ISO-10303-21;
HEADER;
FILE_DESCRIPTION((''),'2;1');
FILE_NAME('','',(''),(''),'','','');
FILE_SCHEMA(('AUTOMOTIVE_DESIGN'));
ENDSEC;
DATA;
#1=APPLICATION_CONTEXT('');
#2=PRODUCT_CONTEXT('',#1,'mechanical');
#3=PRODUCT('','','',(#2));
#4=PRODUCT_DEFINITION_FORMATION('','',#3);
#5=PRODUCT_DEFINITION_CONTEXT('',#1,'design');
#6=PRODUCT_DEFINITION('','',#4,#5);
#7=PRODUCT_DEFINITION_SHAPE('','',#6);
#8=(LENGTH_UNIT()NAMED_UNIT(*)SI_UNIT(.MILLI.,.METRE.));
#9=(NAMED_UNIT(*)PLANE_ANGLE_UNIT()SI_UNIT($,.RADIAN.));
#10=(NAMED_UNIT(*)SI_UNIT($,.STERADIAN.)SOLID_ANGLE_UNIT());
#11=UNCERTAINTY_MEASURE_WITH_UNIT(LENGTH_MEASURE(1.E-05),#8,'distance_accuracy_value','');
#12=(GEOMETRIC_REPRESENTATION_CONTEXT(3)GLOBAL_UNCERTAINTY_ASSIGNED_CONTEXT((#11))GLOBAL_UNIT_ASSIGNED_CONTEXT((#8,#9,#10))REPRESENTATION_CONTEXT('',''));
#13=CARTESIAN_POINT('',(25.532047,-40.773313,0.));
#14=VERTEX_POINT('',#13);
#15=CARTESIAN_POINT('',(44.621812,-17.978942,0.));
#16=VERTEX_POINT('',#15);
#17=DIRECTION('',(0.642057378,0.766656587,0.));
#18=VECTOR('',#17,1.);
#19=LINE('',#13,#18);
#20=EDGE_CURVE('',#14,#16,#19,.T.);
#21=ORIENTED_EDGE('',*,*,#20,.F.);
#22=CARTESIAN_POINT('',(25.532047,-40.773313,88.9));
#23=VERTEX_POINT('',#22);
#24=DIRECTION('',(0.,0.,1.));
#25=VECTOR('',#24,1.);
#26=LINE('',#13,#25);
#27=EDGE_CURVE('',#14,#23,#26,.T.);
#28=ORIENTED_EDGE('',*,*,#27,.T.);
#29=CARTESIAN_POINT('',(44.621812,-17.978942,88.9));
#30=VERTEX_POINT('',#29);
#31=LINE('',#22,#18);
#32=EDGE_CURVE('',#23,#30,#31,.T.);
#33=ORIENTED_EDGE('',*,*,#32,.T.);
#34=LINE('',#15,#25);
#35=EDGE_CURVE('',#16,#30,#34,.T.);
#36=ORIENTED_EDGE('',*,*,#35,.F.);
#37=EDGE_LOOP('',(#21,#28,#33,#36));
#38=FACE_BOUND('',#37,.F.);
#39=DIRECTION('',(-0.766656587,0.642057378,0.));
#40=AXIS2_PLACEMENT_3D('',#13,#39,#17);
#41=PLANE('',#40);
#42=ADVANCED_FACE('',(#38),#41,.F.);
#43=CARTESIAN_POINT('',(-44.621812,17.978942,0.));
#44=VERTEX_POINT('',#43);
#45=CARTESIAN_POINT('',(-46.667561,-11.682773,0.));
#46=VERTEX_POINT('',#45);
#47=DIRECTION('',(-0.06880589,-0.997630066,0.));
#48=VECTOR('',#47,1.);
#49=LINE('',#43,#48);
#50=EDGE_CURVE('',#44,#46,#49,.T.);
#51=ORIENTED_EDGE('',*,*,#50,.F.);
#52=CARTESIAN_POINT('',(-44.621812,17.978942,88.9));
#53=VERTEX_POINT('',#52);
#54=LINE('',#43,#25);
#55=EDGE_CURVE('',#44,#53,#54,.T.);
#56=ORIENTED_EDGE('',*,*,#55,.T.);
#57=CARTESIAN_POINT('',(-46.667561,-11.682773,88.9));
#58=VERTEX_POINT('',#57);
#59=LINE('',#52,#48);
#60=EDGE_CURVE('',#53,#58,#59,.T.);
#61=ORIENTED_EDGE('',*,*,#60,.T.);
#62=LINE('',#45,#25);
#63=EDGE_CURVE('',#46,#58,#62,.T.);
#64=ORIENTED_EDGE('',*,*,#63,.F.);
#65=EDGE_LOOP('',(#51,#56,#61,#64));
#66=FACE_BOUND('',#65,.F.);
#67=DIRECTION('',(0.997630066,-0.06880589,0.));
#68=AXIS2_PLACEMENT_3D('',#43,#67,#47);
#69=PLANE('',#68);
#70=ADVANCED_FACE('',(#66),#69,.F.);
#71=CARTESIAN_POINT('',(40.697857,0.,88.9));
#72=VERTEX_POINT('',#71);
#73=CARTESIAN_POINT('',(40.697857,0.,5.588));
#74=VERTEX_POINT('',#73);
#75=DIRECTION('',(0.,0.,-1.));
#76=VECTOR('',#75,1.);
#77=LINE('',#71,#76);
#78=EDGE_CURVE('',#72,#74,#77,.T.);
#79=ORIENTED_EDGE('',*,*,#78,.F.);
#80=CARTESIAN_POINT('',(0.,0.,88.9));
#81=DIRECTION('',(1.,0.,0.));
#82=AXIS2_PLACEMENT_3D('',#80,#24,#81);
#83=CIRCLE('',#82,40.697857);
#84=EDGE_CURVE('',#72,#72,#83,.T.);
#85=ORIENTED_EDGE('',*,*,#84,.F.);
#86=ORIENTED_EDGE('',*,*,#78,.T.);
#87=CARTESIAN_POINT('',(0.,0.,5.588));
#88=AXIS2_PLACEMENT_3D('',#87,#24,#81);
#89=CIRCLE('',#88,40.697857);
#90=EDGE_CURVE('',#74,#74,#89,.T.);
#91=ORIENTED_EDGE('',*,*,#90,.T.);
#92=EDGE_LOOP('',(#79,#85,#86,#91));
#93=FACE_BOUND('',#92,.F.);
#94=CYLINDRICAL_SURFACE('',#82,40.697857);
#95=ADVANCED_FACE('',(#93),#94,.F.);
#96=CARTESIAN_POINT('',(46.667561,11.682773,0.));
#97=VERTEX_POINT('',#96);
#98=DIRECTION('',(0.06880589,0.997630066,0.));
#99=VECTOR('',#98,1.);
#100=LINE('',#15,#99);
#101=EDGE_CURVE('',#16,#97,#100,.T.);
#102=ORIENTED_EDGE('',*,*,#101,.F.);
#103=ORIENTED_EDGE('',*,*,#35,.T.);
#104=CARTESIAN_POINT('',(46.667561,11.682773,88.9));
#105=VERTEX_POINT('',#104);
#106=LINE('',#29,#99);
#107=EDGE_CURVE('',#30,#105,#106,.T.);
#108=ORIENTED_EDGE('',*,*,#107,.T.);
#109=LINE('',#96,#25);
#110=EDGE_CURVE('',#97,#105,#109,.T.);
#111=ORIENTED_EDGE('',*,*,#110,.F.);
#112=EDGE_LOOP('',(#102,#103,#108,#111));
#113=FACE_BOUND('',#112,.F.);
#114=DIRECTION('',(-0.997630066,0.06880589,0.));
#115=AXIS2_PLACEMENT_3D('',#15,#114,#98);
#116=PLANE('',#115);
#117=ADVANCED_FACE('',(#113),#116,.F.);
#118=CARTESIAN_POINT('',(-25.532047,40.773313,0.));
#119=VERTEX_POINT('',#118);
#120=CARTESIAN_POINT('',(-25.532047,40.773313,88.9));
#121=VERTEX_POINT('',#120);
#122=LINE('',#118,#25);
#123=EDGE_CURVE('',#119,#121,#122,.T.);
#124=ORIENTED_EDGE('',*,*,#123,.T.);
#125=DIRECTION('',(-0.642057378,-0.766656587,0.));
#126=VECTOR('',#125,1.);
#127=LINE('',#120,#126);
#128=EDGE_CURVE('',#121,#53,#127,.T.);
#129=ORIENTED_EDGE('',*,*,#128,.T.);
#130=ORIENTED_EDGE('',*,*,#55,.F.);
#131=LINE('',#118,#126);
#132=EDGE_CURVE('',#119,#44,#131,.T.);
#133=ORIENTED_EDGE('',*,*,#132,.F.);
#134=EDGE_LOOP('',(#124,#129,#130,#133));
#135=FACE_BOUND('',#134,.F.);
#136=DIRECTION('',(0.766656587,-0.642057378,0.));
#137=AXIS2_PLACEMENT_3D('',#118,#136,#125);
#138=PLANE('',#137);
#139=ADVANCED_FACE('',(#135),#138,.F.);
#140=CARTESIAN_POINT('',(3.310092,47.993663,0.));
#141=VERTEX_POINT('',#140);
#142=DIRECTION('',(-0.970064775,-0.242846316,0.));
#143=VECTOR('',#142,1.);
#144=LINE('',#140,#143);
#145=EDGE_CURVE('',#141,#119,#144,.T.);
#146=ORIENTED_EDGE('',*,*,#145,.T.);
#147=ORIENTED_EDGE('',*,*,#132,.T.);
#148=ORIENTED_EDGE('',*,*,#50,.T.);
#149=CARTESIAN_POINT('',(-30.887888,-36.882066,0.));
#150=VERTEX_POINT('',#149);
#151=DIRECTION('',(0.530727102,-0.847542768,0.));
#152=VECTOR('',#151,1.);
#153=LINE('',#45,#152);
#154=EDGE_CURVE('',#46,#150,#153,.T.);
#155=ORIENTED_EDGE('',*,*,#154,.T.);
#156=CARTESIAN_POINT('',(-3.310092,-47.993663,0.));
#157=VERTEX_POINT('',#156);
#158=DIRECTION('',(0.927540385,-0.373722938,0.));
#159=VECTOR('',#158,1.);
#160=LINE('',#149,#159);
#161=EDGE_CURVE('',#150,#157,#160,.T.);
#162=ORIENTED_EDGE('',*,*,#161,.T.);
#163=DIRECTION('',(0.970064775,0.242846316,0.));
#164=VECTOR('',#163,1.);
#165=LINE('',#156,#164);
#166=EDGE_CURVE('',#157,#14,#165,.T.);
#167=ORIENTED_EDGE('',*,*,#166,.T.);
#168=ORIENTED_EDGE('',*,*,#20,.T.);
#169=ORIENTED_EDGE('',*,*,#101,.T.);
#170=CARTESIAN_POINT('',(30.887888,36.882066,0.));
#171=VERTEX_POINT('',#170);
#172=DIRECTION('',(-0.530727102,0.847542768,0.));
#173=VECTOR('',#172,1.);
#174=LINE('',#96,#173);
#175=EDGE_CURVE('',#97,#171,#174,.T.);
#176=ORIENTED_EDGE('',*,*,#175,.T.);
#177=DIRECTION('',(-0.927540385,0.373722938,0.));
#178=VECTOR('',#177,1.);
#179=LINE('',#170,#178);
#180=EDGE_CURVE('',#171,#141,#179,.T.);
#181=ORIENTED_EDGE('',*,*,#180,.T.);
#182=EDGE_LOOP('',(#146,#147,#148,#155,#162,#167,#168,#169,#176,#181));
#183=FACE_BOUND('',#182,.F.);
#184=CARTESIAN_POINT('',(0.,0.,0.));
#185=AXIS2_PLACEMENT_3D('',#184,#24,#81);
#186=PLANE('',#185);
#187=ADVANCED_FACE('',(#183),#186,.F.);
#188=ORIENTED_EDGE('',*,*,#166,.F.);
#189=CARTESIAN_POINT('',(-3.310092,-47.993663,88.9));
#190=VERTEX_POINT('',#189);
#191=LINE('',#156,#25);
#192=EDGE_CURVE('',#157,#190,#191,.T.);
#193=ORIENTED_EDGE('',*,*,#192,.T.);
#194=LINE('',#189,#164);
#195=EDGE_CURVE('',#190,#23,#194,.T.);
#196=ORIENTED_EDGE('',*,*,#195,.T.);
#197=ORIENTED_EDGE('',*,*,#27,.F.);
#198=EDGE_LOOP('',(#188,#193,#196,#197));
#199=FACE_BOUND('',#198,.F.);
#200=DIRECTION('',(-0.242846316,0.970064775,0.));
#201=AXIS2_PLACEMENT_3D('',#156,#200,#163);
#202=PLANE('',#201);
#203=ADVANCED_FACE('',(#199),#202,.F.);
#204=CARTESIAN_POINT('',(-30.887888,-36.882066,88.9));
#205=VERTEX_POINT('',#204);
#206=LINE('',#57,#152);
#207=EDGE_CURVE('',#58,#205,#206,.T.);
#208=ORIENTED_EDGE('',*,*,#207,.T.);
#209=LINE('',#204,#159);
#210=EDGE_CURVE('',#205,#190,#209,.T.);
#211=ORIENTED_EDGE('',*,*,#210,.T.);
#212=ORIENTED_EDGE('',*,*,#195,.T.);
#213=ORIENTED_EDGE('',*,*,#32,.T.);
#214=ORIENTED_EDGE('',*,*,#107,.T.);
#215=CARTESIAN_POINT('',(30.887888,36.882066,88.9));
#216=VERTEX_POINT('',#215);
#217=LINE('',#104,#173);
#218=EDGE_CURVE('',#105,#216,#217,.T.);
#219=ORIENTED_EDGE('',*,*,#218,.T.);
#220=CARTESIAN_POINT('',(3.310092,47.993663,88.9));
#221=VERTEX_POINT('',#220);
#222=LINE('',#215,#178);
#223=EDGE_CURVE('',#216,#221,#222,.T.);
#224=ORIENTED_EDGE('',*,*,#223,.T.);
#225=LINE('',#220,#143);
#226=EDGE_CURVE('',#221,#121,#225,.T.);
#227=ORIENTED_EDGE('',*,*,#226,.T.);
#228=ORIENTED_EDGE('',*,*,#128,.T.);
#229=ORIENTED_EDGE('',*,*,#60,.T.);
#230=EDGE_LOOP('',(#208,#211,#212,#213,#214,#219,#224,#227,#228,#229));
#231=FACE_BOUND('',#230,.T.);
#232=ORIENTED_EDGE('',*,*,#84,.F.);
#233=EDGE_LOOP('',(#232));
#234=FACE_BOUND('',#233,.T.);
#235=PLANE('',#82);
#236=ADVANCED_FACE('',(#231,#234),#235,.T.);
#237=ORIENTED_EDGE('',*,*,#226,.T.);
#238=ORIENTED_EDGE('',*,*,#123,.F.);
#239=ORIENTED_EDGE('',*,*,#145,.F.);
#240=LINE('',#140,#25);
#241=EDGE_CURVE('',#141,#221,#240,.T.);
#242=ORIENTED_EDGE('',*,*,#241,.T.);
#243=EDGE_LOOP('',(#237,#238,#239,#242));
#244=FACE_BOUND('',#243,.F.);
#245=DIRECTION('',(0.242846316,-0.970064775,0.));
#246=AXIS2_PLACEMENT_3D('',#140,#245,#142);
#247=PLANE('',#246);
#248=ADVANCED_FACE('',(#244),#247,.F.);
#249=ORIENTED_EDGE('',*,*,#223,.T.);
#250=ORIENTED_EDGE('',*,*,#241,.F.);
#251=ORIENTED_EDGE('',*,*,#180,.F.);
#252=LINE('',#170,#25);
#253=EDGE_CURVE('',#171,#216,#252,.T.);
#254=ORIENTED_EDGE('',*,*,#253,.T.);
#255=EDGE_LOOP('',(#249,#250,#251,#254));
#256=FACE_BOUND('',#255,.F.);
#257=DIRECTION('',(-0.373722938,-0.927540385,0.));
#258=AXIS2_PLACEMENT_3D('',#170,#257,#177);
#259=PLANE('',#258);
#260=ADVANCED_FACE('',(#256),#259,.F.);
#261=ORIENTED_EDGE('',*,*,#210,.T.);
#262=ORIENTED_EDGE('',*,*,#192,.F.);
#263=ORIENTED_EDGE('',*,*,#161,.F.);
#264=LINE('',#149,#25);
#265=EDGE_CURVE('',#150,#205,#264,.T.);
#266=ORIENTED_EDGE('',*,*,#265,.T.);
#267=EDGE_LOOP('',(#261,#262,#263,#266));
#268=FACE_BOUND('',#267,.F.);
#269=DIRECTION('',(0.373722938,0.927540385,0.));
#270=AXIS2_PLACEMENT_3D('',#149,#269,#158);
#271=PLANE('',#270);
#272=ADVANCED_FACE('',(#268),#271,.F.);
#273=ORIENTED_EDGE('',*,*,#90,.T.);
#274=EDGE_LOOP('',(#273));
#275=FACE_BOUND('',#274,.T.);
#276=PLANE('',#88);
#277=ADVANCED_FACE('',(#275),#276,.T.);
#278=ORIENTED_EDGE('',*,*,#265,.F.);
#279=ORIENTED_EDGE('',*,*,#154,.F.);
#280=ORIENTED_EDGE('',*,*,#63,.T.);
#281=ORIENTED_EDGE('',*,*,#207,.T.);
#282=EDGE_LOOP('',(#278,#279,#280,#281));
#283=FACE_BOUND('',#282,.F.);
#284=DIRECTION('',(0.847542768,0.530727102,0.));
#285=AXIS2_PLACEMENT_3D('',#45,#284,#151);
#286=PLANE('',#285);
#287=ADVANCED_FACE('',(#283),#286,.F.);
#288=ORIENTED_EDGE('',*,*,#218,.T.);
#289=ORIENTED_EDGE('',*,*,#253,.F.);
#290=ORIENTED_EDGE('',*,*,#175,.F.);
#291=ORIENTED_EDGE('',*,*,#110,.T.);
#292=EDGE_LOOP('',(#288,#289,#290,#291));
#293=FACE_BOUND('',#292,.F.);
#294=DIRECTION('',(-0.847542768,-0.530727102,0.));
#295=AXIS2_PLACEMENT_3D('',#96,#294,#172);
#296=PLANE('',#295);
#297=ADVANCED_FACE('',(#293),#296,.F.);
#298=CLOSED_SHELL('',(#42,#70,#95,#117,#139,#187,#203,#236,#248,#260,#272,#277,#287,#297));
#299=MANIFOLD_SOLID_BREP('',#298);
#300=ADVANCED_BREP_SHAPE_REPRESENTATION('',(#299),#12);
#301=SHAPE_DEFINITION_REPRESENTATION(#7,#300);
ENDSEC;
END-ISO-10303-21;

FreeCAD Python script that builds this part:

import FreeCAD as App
import Part
import Sketcher
from FreeCAD import Vector
Q = App.Units.Quantity


def add_polygon(sketch, points):
    """Adds a closed chain of lines whose ends are joined by coincident constraints."""
    first, n = sketch.GeometryCount, len(points)
    for a, b in zip(points, points[1:] + points[:1]):
        sketch.addGeometry(Part.LineSegment(App.Vector(*a, 0), App.Vector(*b, 0)), False)
    for i in range(n):
        sketch.addConstraint(Sketcher.Constraint("Coincident", first + i, 2, first + (i + 1) % n, 1))

doc = App.newDocument("Part")
body = doc.addObject("PartDesign::Body", "Body")

# Sketch on XY plane
sketch1 = body.newObject("Sketcher::SketchObject", "Sketch")
sketch1.AttachmentSupport = (doc.getObject("XY_Plane"), [""])
sketch1.MapMode = "FlatFace"
add_polygon(sketch1, [(26, -41), (45, -18), (47, 12), (31, 37), (3, 48), (-26, 41), (-45, 18), (-47, -12), (-31, -37), (-3, -48)])  # lines 0-9
sketch1.addConstraint(Sketcher.Constraint("Symmetric", 0, 2, 5, 2, -1, 1))
sketch1.addConstraint(Sketcher.Constraint("Symmetric", 1, 2, 6, 2, -1, 1))
sketch1.addConstraint(Sketcher.Constraint("Symmetric", 2, 2, 7, 2, -1, 1))
sketch1.addConstraint(Sketcher.Constraint("Symmetric", 3, 2, 8, 2, -1, 1))
sketch1.addConstraint(Sketcher.Constraint("Symmetric", 4, 2, 9, 2, -1, 1))
sketch1.addConstraint(Sketcher.Constraint("Equal", 0, 1))
sketch1.addConstraint(Sketcher.Constraint("Equal", 1, 2))
sketch1.addConstraint(Sketcher.Constraint("Equal", 2, 3))
sketch1.addConstraint(Sketcher.Constraint("Equal", 3, 4))
sketch1.addConstraint(Sketcher.Constraint("DistanceX", 5, 2, 2, 2, Q("75.5097 mm")))
sketch1.addConstraint(Sketcher.Constraint("Distance", 0, Q("29.732179 mm")))
sketch1.addConstraint(Sketcher.Constraint("DistanceX", -1, 1, 0, 2, Q("44.621812 mm")))
sketch1.addConstraint(Sketcher.Constraint("DistanceY", 0, 2, -1, 1, Q("17.978942 mm")))
sketch1.addConstraint(Sketcher.Constraint("DistanceX", -1, 1, 1, 2, Q("46.667561 mm")))
sketch1.addConstraint(Sketcher.Constraint("DistanceX", -1, 1, 3, 2, Q("3.310092 mm")))
pad1 = body.newObject("PartDesign::Pad", "Pad")
pad1.Profile = sketch1
pad1.Length = Q("3.5 in")

# Sketch on XY plane
sketch2 = body.newObject("Sketcher::SketchObject", "Sketch001")
sketch2.AttachmentSupport = (doc.getObject("XY_Plane"), [""])
sketch2.MapMode = "FlatFace"
sketch2.AttachmentOffset = App.Placement(Vector(0, 0, 3.5 * 25.4), App.Rotation())
sketch2.addGeometry(Part.Circle(Vector(0, 0, 0), Vector(0, 0, 1), 41), False)
sketch2.addConstraint(Sketcher.Constraint("Coincident", 0, 3, -1, 1))
sketch2.addConstraint(Sketcher.Constraint("Diameter", 0, Q("81.395714 mm")))
pocket1 = body.newObject("PartDesign::Pocket", "Pocket")
pocket1.Profile = sketch2
pocket1.Length = Q("3.28 in")

doc.recompute()
